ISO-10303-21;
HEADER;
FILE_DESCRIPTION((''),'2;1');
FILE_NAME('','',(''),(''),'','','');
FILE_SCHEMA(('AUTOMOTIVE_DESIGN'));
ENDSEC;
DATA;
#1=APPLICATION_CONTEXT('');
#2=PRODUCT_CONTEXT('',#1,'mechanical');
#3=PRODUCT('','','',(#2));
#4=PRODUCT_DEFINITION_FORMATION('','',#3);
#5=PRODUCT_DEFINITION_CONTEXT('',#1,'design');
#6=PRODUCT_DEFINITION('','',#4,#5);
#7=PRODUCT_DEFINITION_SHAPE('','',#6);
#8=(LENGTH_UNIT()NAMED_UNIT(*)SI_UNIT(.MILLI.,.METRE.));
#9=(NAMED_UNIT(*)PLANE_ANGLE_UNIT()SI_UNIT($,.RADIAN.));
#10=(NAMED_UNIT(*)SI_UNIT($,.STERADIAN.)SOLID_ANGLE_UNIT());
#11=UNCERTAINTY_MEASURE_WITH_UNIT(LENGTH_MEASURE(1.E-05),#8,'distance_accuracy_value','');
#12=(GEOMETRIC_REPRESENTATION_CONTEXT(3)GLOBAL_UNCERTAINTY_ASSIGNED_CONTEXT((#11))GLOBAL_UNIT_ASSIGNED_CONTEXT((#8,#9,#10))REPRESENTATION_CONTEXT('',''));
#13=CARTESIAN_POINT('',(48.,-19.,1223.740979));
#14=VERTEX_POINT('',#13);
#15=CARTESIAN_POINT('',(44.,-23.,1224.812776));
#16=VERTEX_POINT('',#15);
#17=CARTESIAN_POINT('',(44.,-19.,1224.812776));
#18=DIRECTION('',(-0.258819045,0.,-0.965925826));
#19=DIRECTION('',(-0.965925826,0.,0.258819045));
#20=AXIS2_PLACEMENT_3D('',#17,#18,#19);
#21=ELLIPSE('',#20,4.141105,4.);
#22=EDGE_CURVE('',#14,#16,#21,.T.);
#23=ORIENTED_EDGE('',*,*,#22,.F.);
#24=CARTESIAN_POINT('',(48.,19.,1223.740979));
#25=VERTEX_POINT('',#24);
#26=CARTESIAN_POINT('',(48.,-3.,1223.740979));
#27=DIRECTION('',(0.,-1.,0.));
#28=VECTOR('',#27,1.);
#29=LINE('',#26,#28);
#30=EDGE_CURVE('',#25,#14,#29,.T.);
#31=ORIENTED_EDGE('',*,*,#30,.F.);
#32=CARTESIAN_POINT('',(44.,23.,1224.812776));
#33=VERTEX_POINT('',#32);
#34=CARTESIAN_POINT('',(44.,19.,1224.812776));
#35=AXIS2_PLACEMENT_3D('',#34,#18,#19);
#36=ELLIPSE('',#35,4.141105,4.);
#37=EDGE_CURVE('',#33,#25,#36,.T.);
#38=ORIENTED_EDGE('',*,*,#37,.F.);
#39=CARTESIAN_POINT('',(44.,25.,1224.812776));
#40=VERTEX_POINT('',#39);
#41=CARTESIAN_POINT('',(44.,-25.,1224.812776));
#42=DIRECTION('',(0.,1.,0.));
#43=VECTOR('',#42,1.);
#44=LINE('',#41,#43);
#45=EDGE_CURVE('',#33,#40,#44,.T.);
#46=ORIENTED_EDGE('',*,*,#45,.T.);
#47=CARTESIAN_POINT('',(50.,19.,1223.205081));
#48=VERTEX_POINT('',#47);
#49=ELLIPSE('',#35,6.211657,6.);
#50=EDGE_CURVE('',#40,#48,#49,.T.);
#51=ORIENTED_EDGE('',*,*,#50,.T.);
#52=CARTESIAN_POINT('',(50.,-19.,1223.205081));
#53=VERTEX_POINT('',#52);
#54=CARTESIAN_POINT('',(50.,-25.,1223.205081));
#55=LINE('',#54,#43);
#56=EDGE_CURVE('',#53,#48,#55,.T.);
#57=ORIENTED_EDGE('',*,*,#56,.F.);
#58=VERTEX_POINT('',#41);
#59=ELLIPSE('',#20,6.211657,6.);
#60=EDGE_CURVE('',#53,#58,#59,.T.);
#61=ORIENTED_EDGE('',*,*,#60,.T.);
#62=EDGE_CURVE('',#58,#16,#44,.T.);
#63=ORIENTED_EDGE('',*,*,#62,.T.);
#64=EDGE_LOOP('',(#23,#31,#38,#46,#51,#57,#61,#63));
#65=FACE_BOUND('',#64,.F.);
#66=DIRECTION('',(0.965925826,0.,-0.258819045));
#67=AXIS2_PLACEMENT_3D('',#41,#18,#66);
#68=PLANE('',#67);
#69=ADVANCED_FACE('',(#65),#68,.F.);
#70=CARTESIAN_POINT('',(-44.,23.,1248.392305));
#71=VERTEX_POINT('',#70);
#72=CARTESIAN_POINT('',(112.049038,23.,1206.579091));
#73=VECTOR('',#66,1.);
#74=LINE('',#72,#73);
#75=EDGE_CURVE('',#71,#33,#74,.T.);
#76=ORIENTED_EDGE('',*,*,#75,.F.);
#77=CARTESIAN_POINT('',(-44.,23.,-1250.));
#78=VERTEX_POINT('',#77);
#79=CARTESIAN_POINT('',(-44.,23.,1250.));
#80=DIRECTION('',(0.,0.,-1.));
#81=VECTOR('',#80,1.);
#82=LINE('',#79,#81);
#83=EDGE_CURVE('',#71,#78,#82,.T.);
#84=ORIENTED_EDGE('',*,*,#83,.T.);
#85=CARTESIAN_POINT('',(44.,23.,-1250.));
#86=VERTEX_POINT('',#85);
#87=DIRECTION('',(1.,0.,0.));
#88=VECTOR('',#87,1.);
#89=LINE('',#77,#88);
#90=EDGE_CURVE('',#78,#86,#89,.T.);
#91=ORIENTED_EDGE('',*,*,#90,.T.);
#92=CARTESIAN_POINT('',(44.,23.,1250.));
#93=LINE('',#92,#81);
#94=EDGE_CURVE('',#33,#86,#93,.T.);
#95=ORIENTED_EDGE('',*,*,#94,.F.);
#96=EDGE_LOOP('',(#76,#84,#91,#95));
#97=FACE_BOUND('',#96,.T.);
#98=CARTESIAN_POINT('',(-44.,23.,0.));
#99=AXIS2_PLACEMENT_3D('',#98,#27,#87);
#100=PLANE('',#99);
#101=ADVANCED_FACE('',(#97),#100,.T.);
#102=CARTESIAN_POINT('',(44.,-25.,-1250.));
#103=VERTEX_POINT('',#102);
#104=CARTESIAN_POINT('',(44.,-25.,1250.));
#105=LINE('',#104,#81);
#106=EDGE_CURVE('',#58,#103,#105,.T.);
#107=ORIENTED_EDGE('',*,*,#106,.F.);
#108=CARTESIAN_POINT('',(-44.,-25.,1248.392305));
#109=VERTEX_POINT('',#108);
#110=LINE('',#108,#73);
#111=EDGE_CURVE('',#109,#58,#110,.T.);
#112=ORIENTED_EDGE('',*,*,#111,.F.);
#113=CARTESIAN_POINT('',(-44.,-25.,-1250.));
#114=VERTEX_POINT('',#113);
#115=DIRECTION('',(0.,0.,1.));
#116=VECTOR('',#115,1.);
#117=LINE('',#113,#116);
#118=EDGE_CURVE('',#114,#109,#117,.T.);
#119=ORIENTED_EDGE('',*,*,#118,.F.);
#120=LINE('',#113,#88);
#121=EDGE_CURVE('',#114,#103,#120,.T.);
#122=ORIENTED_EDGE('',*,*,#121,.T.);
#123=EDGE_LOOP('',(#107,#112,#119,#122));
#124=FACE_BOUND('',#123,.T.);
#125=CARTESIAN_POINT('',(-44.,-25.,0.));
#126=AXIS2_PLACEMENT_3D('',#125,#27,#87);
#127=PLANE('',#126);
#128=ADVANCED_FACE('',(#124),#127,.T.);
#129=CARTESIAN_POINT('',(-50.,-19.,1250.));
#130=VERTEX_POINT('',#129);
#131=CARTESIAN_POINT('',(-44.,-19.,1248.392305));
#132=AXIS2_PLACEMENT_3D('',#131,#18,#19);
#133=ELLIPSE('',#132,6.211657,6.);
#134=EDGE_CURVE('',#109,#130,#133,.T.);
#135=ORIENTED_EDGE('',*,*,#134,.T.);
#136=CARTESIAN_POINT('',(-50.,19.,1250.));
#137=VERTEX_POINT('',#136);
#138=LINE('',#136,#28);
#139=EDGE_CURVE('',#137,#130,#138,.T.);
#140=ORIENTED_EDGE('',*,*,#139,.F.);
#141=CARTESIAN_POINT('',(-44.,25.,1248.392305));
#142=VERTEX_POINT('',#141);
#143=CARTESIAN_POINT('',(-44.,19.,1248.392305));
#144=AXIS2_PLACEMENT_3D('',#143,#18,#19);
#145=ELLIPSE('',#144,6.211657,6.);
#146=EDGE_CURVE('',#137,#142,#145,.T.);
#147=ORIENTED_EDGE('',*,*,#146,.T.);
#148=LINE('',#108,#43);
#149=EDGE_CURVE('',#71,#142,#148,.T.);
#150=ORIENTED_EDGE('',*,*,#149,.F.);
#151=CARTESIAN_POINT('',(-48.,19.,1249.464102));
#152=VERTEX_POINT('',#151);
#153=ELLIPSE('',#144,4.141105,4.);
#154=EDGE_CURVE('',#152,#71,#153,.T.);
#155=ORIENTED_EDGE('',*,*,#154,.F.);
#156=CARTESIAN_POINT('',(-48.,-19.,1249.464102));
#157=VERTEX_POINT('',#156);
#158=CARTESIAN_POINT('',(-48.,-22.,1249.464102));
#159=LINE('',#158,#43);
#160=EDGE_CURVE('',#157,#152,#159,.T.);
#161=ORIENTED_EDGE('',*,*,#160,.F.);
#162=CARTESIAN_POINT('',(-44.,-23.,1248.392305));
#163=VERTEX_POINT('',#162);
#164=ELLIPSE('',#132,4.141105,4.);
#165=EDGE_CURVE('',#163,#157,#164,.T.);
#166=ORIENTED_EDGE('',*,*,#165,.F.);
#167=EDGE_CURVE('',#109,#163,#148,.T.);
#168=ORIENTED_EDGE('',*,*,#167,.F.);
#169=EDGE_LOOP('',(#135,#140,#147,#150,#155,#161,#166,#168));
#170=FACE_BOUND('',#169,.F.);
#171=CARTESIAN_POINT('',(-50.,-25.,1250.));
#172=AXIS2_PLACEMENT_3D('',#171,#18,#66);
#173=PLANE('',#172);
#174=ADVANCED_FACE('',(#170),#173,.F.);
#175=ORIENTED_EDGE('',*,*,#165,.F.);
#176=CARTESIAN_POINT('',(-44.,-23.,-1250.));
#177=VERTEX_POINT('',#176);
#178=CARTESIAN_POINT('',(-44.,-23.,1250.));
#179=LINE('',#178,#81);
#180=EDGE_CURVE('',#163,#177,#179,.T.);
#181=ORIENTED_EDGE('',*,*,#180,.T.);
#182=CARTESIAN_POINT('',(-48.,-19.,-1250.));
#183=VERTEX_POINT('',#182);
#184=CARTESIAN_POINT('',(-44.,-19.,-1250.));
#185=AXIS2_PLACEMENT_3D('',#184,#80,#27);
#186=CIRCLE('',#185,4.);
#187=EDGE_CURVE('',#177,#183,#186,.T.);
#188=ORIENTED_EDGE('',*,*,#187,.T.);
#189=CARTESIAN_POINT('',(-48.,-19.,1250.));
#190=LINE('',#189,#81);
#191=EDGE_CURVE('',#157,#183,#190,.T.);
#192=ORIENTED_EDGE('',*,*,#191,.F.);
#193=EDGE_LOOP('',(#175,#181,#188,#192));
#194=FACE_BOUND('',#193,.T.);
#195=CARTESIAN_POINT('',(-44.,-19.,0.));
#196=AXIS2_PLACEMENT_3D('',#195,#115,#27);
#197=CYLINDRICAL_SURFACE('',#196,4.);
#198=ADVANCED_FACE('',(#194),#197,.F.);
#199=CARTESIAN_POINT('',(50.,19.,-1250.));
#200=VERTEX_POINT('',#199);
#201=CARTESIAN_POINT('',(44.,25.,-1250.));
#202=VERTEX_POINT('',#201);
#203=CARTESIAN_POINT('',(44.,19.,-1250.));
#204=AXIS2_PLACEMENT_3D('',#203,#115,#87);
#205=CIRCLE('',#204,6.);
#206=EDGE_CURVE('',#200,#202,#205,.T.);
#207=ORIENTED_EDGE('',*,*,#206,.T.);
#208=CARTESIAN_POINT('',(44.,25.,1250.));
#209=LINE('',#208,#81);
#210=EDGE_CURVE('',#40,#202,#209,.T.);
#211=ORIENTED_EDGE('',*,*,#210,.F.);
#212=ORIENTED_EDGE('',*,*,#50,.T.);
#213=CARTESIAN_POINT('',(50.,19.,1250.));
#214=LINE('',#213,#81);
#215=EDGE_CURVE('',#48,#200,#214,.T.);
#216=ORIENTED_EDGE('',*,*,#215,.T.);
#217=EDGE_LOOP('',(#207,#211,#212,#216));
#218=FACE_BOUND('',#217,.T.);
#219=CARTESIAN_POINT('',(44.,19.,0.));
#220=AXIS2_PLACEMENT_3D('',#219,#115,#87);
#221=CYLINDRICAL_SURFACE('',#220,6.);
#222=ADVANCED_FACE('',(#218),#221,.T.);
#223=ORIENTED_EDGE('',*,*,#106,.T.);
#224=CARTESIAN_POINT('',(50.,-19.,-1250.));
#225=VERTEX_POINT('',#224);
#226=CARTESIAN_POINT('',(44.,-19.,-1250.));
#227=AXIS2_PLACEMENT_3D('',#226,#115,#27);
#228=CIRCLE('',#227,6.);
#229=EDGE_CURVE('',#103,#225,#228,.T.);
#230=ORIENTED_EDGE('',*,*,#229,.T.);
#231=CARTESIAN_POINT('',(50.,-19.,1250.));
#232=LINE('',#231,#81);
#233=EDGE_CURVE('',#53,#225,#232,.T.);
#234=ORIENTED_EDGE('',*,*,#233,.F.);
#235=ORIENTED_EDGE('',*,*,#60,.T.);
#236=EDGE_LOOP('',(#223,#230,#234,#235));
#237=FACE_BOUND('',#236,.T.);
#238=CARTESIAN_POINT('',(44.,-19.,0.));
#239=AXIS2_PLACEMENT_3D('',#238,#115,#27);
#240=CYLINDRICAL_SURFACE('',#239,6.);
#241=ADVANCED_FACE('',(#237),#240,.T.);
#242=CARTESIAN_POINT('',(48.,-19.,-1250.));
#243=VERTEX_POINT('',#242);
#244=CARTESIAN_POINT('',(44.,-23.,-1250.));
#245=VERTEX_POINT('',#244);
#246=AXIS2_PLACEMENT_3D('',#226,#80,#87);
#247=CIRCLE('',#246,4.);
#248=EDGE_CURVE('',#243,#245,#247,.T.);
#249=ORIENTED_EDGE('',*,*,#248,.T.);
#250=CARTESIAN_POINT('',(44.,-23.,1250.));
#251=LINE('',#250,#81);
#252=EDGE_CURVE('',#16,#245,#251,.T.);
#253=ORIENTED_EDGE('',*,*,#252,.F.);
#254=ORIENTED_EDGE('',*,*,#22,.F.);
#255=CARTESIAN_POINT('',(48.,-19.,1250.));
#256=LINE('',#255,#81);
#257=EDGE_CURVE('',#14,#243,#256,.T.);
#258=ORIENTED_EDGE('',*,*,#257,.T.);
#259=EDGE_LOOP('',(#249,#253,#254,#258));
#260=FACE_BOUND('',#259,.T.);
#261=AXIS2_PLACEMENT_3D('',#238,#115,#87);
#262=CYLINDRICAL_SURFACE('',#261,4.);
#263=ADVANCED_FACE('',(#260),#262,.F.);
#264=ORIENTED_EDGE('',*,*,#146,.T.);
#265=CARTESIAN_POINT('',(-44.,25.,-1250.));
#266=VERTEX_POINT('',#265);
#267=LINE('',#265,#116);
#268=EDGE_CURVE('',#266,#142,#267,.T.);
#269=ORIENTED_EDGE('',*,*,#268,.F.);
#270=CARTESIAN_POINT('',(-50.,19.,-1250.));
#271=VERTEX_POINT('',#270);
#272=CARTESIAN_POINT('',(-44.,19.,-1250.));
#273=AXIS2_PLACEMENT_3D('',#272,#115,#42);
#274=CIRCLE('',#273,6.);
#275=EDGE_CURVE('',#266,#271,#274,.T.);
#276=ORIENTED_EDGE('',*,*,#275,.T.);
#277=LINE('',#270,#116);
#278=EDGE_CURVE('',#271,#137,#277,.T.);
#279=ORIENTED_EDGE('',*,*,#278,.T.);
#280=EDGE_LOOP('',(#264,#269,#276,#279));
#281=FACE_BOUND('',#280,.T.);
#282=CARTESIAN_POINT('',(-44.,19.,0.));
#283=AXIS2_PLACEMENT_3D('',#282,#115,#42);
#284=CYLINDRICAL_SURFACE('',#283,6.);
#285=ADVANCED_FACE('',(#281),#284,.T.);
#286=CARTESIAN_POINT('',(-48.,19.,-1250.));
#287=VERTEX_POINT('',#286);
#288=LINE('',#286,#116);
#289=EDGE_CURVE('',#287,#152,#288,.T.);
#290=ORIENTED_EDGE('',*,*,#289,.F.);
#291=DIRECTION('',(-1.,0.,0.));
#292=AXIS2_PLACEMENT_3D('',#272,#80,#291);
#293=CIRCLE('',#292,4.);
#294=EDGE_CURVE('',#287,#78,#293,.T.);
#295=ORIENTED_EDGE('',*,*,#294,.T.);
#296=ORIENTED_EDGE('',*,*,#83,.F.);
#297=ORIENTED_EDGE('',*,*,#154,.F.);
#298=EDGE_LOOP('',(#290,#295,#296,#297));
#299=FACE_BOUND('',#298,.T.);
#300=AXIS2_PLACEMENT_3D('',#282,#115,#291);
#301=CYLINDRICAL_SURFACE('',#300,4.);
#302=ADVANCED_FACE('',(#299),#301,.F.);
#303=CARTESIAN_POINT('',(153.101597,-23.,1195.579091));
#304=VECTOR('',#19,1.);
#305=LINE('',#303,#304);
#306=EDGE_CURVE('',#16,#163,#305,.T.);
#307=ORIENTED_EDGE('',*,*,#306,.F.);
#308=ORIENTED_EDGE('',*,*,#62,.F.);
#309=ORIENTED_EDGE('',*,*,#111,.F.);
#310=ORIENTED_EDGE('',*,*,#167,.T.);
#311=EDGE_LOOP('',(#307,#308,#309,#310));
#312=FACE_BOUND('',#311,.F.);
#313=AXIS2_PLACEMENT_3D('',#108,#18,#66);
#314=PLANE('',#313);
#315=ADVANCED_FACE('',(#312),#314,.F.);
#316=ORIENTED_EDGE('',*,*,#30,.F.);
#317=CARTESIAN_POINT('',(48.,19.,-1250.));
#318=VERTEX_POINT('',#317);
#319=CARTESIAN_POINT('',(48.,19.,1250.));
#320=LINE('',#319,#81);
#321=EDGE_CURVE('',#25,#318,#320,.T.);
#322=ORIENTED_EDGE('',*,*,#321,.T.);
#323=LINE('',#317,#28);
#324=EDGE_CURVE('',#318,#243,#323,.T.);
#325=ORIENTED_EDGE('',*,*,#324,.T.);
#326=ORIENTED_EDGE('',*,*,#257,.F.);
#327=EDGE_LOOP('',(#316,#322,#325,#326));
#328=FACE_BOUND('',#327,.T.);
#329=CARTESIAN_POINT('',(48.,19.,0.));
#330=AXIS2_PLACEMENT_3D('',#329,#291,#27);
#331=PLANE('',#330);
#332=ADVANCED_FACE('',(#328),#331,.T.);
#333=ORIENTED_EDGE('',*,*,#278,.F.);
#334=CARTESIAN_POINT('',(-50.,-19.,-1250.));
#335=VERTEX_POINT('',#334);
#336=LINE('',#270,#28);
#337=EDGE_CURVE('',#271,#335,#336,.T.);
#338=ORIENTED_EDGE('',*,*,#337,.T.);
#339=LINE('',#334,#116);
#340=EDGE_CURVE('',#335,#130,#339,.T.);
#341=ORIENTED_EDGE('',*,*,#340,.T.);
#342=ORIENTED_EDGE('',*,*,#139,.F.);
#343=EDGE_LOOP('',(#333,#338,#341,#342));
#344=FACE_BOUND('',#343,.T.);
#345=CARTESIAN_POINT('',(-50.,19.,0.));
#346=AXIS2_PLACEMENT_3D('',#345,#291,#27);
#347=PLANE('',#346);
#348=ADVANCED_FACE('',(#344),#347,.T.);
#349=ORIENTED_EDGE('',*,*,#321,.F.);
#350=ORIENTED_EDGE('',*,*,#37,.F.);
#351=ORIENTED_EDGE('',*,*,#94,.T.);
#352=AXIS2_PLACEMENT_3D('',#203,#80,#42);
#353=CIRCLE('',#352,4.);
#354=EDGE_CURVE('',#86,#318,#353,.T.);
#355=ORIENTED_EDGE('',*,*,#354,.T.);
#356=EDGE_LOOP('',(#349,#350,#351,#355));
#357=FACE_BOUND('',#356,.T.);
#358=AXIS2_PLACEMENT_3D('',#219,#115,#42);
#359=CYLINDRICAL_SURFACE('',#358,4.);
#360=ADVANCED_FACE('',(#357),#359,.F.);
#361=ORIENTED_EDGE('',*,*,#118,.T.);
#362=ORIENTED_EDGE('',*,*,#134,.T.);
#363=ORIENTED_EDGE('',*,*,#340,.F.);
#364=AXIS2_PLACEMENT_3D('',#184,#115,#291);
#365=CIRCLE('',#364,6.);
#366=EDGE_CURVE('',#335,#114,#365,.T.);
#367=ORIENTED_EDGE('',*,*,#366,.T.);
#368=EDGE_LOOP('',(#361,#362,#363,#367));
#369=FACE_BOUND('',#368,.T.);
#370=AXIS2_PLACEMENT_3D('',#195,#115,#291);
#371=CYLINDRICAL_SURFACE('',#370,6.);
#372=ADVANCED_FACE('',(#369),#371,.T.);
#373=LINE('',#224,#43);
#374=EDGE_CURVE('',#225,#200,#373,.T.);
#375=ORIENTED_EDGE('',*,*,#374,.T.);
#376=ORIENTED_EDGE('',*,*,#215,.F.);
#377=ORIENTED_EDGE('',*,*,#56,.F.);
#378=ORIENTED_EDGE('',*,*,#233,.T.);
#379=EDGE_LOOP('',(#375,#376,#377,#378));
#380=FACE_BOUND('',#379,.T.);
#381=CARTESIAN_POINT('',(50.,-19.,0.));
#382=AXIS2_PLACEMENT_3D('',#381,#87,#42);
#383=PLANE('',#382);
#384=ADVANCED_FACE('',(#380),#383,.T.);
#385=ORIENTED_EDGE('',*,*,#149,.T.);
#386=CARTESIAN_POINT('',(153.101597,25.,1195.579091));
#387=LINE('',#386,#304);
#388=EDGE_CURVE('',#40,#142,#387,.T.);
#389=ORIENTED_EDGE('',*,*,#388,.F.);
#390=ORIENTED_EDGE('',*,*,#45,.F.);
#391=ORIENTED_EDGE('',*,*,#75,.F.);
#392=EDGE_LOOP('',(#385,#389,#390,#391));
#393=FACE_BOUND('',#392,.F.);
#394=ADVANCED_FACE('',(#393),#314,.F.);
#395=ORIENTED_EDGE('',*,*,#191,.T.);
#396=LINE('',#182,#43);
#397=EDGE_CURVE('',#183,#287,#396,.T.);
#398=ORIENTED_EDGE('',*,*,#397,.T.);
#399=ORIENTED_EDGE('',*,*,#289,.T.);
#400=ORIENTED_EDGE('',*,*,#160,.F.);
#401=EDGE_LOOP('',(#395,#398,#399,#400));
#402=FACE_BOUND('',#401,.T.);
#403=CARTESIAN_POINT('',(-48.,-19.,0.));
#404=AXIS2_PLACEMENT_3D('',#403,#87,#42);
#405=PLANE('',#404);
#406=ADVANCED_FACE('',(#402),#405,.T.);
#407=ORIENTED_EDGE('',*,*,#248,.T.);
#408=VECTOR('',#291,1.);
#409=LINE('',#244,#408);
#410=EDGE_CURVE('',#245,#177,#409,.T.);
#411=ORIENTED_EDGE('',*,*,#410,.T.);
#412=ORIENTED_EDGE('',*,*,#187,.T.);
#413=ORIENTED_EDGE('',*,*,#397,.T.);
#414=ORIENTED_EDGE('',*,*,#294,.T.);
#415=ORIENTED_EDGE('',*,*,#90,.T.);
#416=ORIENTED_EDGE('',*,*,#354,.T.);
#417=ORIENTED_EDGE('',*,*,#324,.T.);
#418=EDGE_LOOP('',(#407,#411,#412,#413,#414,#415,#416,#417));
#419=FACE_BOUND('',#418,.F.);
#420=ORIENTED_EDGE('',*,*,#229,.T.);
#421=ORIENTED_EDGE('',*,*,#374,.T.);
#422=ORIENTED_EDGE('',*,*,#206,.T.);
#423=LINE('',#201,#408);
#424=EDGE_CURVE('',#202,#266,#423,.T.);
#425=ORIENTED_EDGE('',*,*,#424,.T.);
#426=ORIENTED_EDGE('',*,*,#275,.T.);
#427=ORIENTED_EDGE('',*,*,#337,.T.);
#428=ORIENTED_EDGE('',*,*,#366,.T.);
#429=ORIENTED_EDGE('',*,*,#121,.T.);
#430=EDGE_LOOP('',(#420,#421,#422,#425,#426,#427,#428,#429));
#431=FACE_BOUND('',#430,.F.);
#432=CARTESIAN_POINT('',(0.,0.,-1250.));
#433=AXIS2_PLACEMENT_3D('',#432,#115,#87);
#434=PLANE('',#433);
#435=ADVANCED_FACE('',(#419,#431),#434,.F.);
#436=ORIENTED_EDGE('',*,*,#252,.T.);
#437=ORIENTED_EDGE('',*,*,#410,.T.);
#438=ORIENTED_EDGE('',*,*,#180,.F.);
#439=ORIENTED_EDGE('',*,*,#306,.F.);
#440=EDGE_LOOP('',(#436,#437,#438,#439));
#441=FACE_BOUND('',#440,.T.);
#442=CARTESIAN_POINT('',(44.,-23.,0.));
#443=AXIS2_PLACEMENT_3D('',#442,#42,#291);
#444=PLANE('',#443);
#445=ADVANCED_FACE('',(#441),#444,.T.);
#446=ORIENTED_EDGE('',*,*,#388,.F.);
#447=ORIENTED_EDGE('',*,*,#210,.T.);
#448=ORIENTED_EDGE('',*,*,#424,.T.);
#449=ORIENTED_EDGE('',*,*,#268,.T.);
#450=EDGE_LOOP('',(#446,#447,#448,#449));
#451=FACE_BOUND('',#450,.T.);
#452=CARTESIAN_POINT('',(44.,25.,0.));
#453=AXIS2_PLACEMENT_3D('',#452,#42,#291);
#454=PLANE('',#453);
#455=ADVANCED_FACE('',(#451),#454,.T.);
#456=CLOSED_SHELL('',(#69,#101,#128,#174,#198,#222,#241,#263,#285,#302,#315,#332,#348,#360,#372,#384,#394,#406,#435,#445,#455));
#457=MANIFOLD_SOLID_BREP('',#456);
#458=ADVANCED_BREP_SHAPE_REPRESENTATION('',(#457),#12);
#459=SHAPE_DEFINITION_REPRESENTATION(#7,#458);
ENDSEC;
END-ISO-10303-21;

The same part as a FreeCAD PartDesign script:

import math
import FreeCAD as App
import Part
import Sketcher
from FreeCAD import Vector
Q = App.Units.Quantity


def add_polygon(sketch, points):
    """Adds a closed chain of lines whose ends are joined by coincident constraints."""
    first, n = sketch.GeometryCount, len(points)
    for a, b in zip(points, points[1:] + points[:1]):
        sketch.addGeometry(Part.LineSegment(App.Vector(*a, 0), App.Vector(*b, 0)), False)
    for i in range(n):
        sketch.addConstraint(Sketcher.Constraint("Coincident", first + i, 2, first + (i + 1) % n, 1))

doc = App.newDocument("Part")
body = doc.addObject("PartDesign::Body", "Body")

sketch1 = body.newObject("Sketcher::SketchObject", "Sketch")
sketch1.AttachmentSupport = (doc.getObject("XY_Plane"), [""])
sketch1.MapMode = "FlatFace"
sketch1.addGeometry([
    Part.LineSegment(Vector(44, 25, 0), Vector(-44, 25, 0)),
    Part.ArcOfCircle(Part.Circle(Vector(-44, 19, 0), Vector(0, 0, 1), 6), math.radians(90), math.radians(180)),
    Part.LineSegment(Vector(-50, 19, 0), Vector(-50, -19, 0)),
    Part.ArcOfCircle(Part.Circle(Vector(-44, -19, 0), Vector(0, 0, 1), 6), math.radians(180), math.radians(270)),
    Part.LineSegment(Vector(-44, -25, 0), Vector(44, -25, 0)),
    Part.ArcOfCircle(Part.Circle(Vector(44, -19, 0), Vector(0, 0, 1), 6), math.radians(-90), math.radians(0)),
    Part.LineSegment(Vector(50, -19, 0), Vector(50, 19, 0)),
    Part.ArcOfCircle(Part.Circle(Vector(44, 19, 0), Vector(0, 0, 1), 6), math.radians(0), math.radians(90)),
    Part.LineSegment(Vector(-48, -19, 0), Vector(-48, 19, 0)),
    Part.ArcOfCircle(Part.Circle(Vector(-44, 19, 0), Vector(0, 0, 1), 4), math.radians(90), math.radians(180)),
    Part.LineSegment(Vector(-44, 23, 0), Vector(44, 23, 0)),
    Part.ArcOfCircle(Part.Circle(Vector(44, 19, 0), Vector(0, 0, 1), 4), math.radians(0), math.radians(90)),
    Part.LineSegment(Vector(48, 19, 0), Vector(48, -19, 0)),
    Part.ArcOfCircle(Part.Circle(Vector(44, -19, 0), Vector(0, 0, 1), 4), math.radians(-90), math.radians(0)),
    Part.LineSegment(Vector(44, -23, 0), Vector(-44, -23, 0)),
    Part.ArcOfCircle(Part.Circle(Vector(-44, -19, 0), Vector(0, 0, 1), 4), math.radians(180), math.radians(270)),
], False)
sketch1.addConstraint([
    Sketcher.Constraint("Tangent", 0, 2, 1, 1),
    Sketcher.Constraint("Tangent", 1, 2, 2, 1),
    Sketcher.Constraint("Tangent", 2, 2, 3, 1),
    Sketcher.Constraint("Tangent", 3, 2, 4, 1),
    Sketcher.Constraint("Tangent", 4, 2, 5, 1),
    Sketcher.Constraint("Tangent", 5, 2, 6, 1),
    Sketcher.Constraint("Tangent", 6, 2, 7, 1),
    Sketcher.Constraint("Tangent", 7, 2, 0, 1),
    Sketcher.Constraint("Tangent", 8, 2, 9, 2),
    Sketcher.Constraint("Tangent", 9, 1, 10, 1),
    Sketcher.Constraint("Tangent", 10, 2, 11, 2),
    Sketcher.Constraint("Tangent", 11, 1, 12, 1),
    Sketcher.Constraint("Tangent", 12, 2, 13, 2),
    Sketcher.Constraint("Tangent", 13, 1, 14, 1),
    Sketcher.Constraint("Tangent", 14, 2, 15, 2),
    Sketcher.Constraint("Tangent", 15, 1, 8, 1),
    Sketcher.Constraint("Horizontal", 0),
    Sketcher.Constraint("Vertical", 2),
    Sketcher.Constraint("Horizontal", 4),
    Sketcher.Constraint("Vertical", 6),
    Sketcher.Constraint("Vertical", 8),
    Sketcher.Constraint("Horizontal", 10),
    Sketcher.Constraint("Vertical", 12),
    Sketcher.Constraint("Horizontal", 14),
    Sketcher.Constraint("Coincident", 9, 3, 1, 3),
    Sketcher.Constraint("Coincident", 11, 3, 7, 3),
    Sketcher.Constraint("Coincident", 13, 3, 5, 3),
    Sketcher.Constraint("Equal", 1, 3),
    Sketcher.Constraint("Equal", 3, 5),
    Sketcher.Constraint("Equal", 5, 7),
    Sketcher.Constraint("Equal", 13, 15),
    Sketcher.Constraint("Symmetric", 1, 3, 5, 3, -1, 1),
    Sketcher.Constraint("Radius", 1, 6.0),
    Sketcher.Constraint("Radius", 9, 4.0),
    Sketcher.Constraint("DistanceX", 0, 2, 0, 1, 88.0),
    Sketcher.Constraint("DistanceY", 2, 2, 2, 1, 38.0),
])
pad1 = body.newObject("PartDesign::Pad", "Pad")
pad1.Profile = sketch1
pad1.Length = 2500
pad1.Midplane = True

sketch2 = body.newObject("Sketcher::SketchObject", "Sketch001")
sketch2.AttachmentSupport = (doc.getObject("XZ_Plane"), [""])
sketch2.MapMode = "FlatFace"
sketch2.AttachmentOffset = App.Placement(Vector(0, 0, 25), App.Rotation())
add_polygon(sketch2, [(50, 1223.205081), (50, 1250), (-50, 1250), (-44, 1248.392305), (44, 1224.812776)])
sketch2.addConstraint([
    Sketcher.Constraint("Vertical", 0),
    Sketcher.Constraint("Horizontal", 1),
    Sketcher.Constraint("Parallel", 2, 3),
    Sketcher.Constraint("Parallel", 3, 4),
    Sketcher.Constraint("Equal", 2, 4),
    Sketcher.Constraint("DistanceX", 1, 2, 1, 1, 100.0),
    Sketcher.Constraint("Angle", 2, Q("-15 deg")),
    Sketcher.Constraint("DistanceX", -1, 1, 0, 2, 50.0),
    Sketcher.Constraint("DistanceY", -1, 1, 0, 2, 1250.0),
    Sketcher.Constraint("DistanceX", 2, 2, -1, 1, 44.0),
])
pocket1 = body.newObject("PartDesign::Pocket", "Pocket")
pocket1.Profile = sketch2
pocket1.Type = "ThroughAll"

doc.recompute()
